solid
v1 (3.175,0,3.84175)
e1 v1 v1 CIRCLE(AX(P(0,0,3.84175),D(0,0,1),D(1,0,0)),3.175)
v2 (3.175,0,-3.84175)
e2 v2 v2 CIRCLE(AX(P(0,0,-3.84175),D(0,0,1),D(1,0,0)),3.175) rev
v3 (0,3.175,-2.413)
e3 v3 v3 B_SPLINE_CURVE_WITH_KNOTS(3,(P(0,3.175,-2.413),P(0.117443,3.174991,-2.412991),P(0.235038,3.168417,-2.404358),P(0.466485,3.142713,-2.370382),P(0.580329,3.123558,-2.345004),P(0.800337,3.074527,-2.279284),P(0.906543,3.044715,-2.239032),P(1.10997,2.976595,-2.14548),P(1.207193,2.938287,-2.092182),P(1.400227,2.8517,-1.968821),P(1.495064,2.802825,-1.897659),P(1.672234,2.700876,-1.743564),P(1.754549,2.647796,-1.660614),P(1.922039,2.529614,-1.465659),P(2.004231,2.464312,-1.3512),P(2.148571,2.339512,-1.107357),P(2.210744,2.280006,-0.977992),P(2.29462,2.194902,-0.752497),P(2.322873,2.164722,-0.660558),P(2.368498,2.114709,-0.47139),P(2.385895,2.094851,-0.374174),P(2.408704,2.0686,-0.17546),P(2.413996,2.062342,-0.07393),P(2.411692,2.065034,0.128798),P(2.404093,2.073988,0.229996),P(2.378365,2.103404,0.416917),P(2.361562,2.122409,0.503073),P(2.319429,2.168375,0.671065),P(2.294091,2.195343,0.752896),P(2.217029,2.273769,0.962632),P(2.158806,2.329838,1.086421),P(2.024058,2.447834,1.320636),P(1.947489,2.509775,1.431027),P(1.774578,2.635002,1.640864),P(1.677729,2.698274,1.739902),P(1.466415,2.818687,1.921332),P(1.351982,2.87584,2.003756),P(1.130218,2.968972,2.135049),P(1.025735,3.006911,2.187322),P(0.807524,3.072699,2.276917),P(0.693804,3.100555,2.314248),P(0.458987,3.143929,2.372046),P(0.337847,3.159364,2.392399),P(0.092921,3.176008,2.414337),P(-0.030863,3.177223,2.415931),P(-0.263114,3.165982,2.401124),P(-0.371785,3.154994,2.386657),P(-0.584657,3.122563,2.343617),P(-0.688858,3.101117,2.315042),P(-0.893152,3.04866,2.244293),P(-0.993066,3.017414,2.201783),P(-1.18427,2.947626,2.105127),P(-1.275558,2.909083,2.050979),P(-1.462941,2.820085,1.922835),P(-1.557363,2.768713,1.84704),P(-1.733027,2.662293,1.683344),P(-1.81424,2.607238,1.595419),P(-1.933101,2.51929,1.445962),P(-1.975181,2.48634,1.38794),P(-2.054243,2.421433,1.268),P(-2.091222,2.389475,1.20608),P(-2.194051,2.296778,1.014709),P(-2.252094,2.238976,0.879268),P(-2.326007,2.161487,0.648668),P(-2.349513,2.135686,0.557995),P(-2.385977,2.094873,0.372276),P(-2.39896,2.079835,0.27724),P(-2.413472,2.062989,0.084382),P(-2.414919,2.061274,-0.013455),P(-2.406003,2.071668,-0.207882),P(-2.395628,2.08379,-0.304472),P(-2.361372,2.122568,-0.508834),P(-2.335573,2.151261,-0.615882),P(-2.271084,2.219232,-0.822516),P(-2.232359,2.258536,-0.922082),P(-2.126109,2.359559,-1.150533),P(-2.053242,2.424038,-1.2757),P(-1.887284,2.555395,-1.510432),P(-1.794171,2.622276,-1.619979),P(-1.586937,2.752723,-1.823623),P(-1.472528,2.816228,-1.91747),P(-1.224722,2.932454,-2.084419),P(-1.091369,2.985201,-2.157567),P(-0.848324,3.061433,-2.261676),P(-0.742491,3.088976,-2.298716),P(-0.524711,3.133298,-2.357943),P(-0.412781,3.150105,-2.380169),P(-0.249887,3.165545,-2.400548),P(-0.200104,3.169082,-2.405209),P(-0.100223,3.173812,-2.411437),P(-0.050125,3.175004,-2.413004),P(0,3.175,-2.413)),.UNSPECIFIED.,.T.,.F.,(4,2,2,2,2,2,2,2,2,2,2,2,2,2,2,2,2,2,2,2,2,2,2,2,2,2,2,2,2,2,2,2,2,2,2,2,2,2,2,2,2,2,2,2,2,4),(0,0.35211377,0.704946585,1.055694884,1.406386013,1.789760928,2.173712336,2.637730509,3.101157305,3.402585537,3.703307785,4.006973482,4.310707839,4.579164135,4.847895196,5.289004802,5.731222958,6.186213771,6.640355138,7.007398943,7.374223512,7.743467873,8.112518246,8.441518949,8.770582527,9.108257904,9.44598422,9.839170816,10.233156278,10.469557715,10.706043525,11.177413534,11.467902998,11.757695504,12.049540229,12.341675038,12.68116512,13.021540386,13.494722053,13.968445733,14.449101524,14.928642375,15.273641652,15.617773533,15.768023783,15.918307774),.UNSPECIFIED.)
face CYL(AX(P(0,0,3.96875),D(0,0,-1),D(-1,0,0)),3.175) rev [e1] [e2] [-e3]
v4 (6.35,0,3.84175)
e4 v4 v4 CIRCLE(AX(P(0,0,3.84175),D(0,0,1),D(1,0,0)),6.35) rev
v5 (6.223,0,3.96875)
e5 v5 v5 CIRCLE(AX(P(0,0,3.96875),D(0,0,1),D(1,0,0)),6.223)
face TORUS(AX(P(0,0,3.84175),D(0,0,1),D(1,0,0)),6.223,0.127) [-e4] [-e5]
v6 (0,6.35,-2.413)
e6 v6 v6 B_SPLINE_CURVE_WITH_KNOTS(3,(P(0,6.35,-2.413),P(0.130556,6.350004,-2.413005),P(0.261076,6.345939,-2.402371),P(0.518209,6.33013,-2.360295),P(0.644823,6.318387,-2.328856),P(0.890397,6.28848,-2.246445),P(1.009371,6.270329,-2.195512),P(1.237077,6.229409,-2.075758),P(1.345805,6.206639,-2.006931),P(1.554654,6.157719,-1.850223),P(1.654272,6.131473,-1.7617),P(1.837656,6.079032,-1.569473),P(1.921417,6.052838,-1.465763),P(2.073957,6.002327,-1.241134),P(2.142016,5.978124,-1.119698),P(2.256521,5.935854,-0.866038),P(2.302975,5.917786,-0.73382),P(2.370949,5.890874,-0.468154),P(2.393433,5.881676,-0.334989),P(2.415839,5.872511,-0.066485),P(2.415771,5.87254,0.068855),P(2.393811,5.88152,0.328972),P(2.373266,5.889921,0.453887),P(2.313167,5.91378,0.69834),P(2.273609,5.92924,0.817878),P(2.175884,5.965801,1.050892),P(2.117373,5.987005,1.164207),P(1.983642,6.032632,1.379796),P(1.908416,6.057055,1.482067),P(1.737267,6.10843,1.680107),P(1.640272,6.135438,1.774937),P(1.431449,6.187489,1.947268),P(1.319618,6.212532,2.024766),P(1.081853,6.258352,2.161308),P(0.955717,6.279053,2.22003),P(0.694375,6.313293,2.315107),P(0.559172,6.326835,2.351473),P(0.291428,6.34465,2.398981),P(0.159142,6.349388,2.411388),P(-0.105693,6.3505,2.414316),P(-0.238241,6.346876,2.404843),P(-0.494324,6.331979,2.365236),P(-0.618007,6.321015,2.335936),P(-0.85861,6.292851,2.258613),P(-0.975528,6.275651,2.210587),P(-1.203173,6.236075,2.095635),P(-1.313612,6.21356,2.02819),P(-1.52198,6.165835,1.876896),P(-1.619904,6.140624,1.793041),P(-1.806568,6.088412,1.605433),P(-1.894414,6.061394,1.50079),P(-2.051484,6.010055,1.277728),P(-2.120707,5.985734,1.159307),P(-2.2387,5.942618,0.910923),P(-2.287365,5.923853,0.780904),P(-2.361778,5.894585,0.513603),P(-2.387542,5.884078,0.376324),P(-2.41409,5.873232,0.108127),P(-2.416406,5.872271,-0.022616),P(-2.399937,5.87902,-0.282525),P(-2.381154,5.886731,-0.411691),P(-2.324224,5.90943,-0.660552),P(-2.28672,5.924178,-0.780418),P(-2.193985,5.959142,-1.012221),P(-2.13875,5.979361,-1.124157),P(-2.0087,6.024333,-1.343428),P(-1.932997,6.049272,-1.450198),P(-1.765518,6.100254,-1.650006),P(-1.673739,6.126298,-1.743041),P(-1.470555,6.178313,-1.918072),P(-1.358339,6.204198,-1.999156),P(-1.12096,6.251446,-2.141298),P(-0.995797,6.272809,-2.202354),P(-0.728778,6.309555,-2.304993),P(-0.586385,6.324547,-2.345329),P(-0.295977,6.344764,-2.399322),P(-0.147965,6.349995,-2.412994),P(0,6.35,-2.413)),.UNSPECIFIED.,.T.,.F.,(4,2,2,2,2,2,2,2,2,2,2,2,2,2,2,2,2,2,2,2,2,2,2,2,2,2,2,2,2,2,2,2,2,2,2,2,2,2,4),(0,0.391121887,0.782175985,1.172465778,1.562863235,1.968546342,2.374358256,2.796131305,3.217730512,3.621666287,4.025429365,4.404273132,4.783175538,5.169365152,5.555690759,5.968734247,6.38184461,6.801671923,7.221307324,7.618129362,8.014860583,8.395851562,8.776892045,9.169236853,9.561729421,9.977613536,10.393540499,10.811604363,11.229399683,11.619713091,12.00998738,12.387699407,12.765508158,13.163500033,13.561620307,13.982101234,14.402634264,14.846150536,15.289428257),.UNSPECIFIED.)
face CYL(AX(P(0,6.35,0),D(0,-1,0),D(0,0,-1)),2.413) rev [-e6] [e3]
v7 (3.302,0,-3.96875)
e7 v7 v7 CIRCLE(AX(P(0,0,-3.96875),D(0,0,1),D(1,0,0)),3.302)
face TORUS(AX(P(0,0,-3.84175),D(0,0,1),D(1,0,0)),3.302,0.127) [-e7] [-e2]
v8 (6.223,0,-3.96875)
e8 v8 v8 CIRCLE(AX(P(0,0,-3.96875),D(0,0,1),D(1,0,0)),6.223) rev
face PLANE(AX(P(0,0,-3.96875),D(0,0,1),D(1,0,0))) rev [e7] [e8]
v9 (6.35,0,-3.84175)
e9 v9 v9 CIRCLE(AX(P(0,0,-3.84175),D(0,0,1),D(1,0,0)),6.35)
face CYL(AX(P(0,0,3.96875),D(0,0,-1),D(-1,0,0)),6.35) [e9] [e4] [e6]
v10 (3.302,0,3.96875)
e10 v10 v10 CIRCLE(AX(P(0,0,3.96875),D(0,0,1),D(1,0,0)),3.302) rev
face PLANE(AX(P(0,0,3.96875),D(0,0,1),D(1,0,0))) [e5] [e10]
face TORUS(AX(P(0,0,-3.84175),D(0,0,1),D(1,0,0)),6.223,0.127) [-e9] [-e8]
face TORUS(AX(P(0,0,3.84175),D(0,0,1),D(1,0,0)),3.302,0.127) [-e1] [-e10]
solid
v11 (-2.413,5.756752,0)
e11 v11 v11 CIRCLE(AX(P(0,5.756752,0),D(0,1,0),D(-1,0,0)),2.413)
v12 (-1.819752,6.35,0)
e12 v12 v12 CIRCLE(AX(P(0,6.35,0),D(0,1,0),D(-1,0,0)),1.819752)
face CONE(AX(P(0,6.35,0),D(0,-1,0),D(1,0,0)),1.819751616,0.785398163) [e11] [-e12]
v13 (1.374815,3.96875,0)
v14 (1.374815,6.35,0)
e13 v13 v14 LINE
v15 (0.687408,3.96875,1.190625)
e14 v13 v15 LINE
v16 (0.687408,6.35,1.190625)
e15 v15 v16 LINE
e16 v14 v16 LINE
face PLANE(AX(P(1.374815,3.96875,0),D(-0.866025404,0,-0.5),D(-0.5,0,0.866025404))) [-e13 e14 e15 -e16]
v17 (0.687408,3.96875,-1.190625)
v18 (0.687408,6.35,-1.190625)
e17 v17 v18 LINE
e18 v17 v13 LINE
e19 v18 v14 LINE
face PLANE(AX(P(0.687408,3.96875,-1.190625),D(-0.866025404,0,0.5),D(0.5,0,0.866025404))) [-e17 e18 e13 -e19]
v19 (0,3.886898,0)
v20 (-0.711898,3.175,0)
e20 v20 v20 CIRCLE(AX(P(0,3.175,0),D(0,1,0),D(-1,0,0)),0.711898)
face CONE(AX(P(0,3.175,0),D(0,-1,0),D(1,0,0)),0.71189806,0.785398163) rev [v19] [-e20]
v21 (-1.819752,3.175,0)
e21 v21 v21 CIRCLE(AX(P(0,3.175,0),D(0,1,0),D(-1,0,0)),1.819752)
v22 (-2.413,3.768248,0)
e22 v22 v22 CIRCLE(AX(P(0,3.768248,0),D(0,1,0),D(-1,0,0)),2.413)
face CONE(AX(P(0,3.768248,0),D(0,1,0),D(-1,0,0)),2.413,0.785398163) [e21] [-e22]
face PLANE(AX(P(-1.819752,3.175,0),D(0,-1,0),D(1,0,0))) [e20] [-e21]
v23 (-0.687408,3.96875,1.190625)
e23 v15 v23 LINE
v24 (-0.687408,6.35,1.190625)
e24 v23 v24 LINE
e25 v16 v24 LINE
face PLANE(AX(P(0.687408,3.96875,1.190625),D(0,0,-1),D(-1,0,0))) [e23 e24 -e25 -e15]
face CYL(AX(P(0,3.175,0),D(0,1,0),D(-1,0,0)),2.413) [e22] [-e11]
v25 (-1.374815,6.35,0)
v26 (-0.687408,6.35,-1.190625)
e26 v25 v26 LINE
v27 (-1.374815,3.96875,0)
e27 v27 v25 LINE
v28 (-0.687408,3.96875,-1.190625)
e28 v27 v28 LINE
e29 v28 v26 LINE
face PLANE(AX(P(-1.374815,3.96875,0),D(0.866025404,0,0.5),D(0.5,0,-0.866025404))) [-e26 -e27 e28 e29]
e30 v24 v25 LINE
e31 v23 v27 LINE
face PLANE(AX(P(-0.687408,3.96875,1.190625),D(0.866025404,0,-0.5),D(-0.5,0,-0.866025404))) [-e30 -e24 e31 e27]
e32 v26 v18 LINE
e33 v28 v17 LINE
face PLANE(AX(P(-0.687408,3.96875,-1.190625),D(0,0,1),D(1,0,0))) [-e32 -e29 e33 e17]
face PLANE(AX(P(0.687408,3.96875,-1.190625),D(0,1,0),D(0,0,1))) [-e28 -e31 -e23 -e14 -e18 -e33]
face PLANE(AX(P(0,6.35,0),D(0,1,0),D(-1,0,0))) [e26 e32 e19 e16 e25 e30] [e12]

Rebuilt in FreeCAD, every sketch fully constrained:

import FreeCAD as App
import Part
import Sketcher

V = App.Vector
Q = App.Units.Quantity


def edges_at(feature, points):
    """Names of the edges that pass closest to the given points."""
    edges = feature.Shape.Edges
    near = lambda p: min(range(len(edges)), key=lambda i: edges[i].distToShape(Part.Vertex(*p))[0])
    return sorted({f"Edge{near(p) + 1}" for p in points})

doc = App.newDocument("Part")
body = doc.addObject("PartDesign::Body", "Body")

sketch1 = body.newObject("Sketcher::SketchObject", "Sketch")
sketch1.AttachmentSupport = (doc.getObject("XY_Plane"), [""])
sketch1.MapMode = "FlatFace"
sketch1.addGeometry([
    Part.Circle(V(0, 0, 0), V(0, 0, 1), 6.3),
    Part.Circle(V(0, 0, 0), V(0, 0, 1), 3.2),
], False)
sketch1.addConstraint([
    Sketcher.Constraint("Coincident", 0, 3, -1, 1),
    Sketcher.Constraint("Coincident", 1, 3, -1, 1),
    Sketcher.Constraint("Diameter", 0, Q("0.5 in")),
    Sketcher.Constraint("Diameter", 1, Q("0.25 in")),
])
pad1 = body.newObject("PartDesign::Pad", "Pad")
pad1.Profile = sketch1
pad1.Length = Q("0.3125 in")
pad1.Midplane = True

sketch2 = body.newObject("Sketcher::SketchObject", "Sketch001")
sketch2.AttachmentSupport = (doc.getObject("XZ_Plane"), [""])
sketch2.MapMode = "FlatFace"
sketch2.addGeometry(Part.Circle(V(0, 0, 0), V(0, 0, 1), 2.4), False)
sketch2.addConstraint([
    Sketcher.Constraint("Coincident", 0, 3, -1, 1),
    Sketcher.Constraint("Diameter", 0, Q("0.19 in")),
])
pocket1 = body.newObject("PartDesign::Pocket", "Pocket")
pocket1.Profile = sketch2
pocket1.Type = "ThroughAll"
doc.recompute()

fillet = body.newObject("PartDesign::Fillet", "Fillet")
fillet.Base = (pocket1, edges_at(pocket1, [
    (-6.35, 0, -3.969),
    (-6.35, 0, 3.969),
    (-3.175, 0, -3.969),
    (-3.175, 0, 3.969),
]))
fillet.Radius = Q("0.005 in")
body2 = doc.addObject("PartDesign::Body", "Body001")

sketch3 = body2.newObject("Sketcher::SketchObject", "Sketch002")
sketch3.AttachmentSupport = (doc.getObject("XY_Plane001"), [""])
sketch3.MapMode = "FlatFace"
sketch3.addGeometry([
    Part.LineSegment(V(-1.8, 3.2, 0), V(-0.7, 3.2, 0)),
    Part.LineSegment(V(-0.7, 3.2, 0), V(0, 3.9, 0)),
    Part.LineSegment(V(0, 3.9, 0), V(0, 6.3, 0)),
    Part.LineSegment(V(0, 6.3, 0), V(-1.8, 6.3, 0)),
    Part.LineSegment(V(-1.8, 6.3, 0), V(-2.4, 5.8, 0)),
    Part.LineSegment(V(-2.4, 5.8, 0), V(-2.4, 3.8, 0)),
    Part.LineSegment(V(-2.4, 3.8, 0), V(-1.8, 3.2, 0)),
], False)
sketch3.addConstraint([
    Sketcher.Constraint("Coincident", 0, 2, 1, 1),
    Sketcher.Constraint("Coincident", 1, 2, 2, 1),
    Sketcher.Constraint("Coincident", 2, 2, 3, 1),
    Sketcher.Constraint("Coincident", 3, 2, 4, 1),
    Sketcher.Constraint("Coincident", 4, 2, 5, 1),
    Sketcher.Constraint("Coincident", 5, 2, 6, 1),
    Sketcher.Constraint("Coincident", 6, 2, 0, 1),
    Sketcher.Constraint("Horizontal", 0),
    Sketcher.Constraint("Vertical", 2),
    Sketcher.Constraint("Horizontal", 3),
    Sketcher.Constraint("Vertical", 5),
    Sketcher.Constraint("PointOnObject", 1, 2, -2),
    Sketcher.Constraint("Parallel", 1, 4),
    Sketcher.Constraint("Perpendicular", 4, 6),
    Sketcher.Constraint("Vertical", 3, 2, 6, 2),
    Sketcher.Constraint("Equal", 4, 6),
    Sketcher.Constraint("DistanceY", -1, 1, 2, 2, Q("0.25 in")),
    Sketcher.Constraint("DistanceY", -1, 1, 0, 2, Q("0.125 in")),
    Sketcher.Constraint("DistanceX", 4, 2, -1, 1, Q("0.095 in")),
    Sketcher.Constraint("DistanceY", 2, 1, 2, 2, Q("2.463102 mm")),
    Sketcher.Constraint("DistanceX", 3, 2, 3, 1, Q("1.819752 mm")),
])
revolution = body2.newObject("PartDesign::Revolution", "Revolution")
revolution.Profile = sketch3
revolution.ReferenceAxis = (sketch3, ["V_Axis"])
revolution.Angle = 360

sketch4 = body2.newObject("Sketcher::SketchObject", "Sketch003")
sketch4.AttachmentSupport = (doc.getObject("XZ_Plane001"), [""])
sketch4.MapMode = "FlatFace"
sketch4.AttachmentOffset = App.Placement(V(0, 0, -0.25 * 25.4), App.Rotation())
sketch4.addGeometry([
    Part.LineSegment(V(1.4, 0, 0), V(0.7, 1.2, 0)),
    Part.LineSegment(V(0.7, 1.2, 0), V(-0.7, 1.2, 0)),
    Part.LineSegment(V(-0.7, 1.2, 0), V(-1.4, 0, 0)),
    Part.LineSegment(V(-1.4, 0, 0), V(-0.7, -1.2, 0)),
    Part.LineSegment(V(-0.7, -1.2, 0), V(0.7, -1.2, 0)),
    Part.LineSegment(V(0.7, -1.2, 0), V(1.4, 0, 0)),
], False)
sketch4.addConstraint([
    Sketcher.Constraint("Coincident", 0, 2, 1, 1),
    Sketcher.Constraint("Coincident", 1, 2, 2, 1),
    Sketcher.Constraint("Coincident", 2, 2, 3, 1),
    Sketcher.Constraint("Coincident", 3, 2, 4, 1),
    Sketcher.Constraint("Coincident", 4, 2, 5, 1),
    Sketcher.Constraint("Coincident", 5, 2, 0, 1),
    Sketcher.Constraint("Horizontal", 1),
    Sketcher.Constraint("Horizontal", 4),
    Sketcher.Constraint("Symmetric", 0, 2, 3, 2, -1, 1),
    Sketcher.Constraint("Symmetric", 2, 2, 5, 2, -1, 1),
    Sketcher.Constraint("PointOnObject", 2, 2, -1),
    Sketcher.Constraint("Parallel", 2, 5),
    Sketcher.Constraint("Vertical", 1, 2, 3, 2),
    Sketcher.Constraint("Angle", 0, Q("120 deg")),
    Sketcher.Constraint("DistanceY", -1, 1, 0, 2, Q("0.046875 in")),
    Sketcher.Constraint("DistanceX", 1, 2, 1, 1, Q("1.374815 mm")),
])
pocket2 = body2.newObject("PartDesign::Pocket", "Pocket001")
pocket2.Profile = sketch4
pocket2.Length = Q("0.09375 in")
pocket2.Reversed = True

doc.recompute()
